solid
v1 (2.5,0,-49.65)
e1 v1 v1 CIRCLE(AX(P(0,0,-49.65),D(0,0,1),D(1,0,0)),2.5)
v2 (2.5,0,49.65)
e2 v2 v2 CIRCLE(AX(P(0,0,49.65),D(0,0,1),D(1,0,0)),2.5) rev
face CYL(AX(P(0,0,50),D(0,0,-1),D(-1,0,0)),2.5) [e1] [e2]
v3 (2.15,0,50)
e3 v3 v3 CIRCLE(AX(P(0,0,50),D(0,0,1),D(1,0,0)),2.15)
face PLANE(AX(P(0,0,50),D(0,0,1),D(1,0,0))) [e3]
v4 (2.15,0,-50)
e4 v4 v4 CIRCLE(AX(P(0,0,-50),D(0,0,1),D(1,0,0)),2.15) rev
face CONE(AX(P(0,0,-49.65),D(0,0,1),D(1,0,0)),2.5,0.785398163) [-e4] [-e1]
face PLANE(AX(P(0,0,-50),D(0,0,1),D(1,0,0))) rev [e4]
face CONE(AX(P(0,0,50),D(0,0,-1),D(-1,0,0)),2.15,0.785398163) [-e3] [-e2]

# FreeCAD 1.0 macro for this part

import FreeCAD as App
import Part
import Sketcher
from FreeCAD import Vector


def edges_at(feature, points):
    """Names of the edges that pass closest to the given points."""
    edges = feature.Shape.Edges
    near = lambda p: min(range(len(edges)), key=lambda i: edges[i].distToShape(Part.Vertex(*p))[0])
    return sorted({f"Edge{near(p) + 1}" for p in points})

doc = App.newDocument("Part")
params = doc.addObject("Spreadsheet::Sheet", "Params")
for row, (alias, value) in enumerate([
    ("sketch1_diameter", "5 mm"),
    ("pad1_length", "50 mm"),
    ("pad1_length2", "50 mm"),
    ("chamfer_size", "0.35 mm"),
], start=1):
    params.set(f"A{row}", alias)
    params.set(f"B{row}", "=" + value)
    params.setAlias(f"B{row}", alias)

body = doc.addObject("PartDesign::Body", "Body")

# Sketch on XY plane
sketch1 = body.newObject("Sketcher::SketchObject", "Sketch")
sketch1.AttachmentSupport = (doc.getObject("XY_Plane"), [""])
sketch1.MapMode = "FlatFace"
sketch1.addGeometry(Part.Circle(Vector(0, 0, 0), Vector(0, 0, 1), 2.5), False)
sketch1.addConstraint([
    Sketcher.Constraint("Coincident", 0, 3, -1, 1),
    Sketcher.Constraint("Diameter", 0, 5.0),
])
sketch1.setExpression("Constraints[1]", "Params.sketch1_diameter")
pad1 = body.newObject("PartDesign::Pad", "Pad")
pad1.Profile = sketch1
pad1.Type = "TwoLengths"
pad1.setExpression("Length", "Params.pad1_length")
pad1.setExpression("Length2", "Params.pad1_length2")
doc.recompute()

chamfer = body.newObject("PartDesign::Chamfer", "Chamfer")
chamfer.Base = (pad1, edges_at(pad1, [(-2.5, 0, -50), (-2.5, 0, 50)]))
chamfer.setExpression("Size", "Params.chamfer_size")

doc.recompute()
